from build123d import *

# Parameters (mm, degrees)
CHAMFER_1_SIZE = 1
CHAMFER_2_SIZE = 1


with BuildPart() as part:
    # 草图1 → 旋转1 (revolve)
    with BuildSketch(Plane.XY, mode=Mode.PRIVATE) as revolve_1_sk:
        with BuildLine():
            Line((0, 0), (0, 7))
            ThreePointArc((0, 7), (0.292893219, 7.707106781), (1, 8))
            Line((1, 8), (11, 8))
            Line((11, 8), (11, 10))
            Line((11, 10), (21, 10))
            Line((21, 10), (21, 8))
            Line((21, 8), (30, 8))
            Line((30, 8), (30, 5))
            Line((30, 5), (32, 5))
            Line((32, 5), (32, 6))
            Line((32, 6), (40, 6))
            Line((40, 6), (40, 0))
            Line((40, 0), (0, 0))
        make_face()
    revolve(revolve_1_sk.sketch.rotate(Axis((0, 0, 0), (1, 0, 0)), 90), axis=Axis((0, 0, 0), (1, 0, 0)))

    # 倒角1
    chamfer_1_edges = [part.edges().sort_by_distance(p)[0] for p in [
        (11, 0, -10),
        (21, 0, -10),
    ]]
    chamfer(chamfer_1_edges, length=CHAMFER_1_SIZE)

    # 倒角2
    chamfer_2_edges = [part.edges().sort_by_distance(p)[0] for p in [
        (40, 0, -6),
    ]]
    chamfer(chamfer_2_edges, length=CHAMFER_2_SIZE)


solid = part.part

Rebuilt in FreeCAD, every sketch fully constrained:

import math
import FreeCAD as App
import Part
import Sketcher

V = App.Vector


def edges_at(feature, points):
    """Names of the edges that pass closest to the given points."""
    edges = feature.Shape.Edges
    near = lambda p: min(range(len(edges)), key=lambda i: edges[i].distToShape(Part.Vertex(*p))[0])
    return sorted({f"Edge{near(p) + 1}" for p in points})

doc = App.newDocument("Part")
body = doc.addObject("PartDesign::Body", "Body")

# Sketch on XY plane
sketch1 = doc.addObject("Sketcher::SketchObject", "Sketch")
body.addObject(sketch1)
sketch1.AttachmentSupport = (doc.XY_Plane, [""])
sketch1.MapMode = "FlatFace"
sketch1.addGeometry([
    Part.LineSegment(V(0, 7, 0), V(0, 0, 0)),  # 0
    Part.LineSegment(V(0, 0, 0), V(40, 0, 0)),  # 1
    Part.LineSegment(V(40, 0, 0), V(40, 6, 0)),  # 2
    Part.LineSegment(V(40, 6, 0), V(32, 6, 0)),  # 3
    Part.LineSegment(V(32, 6, 0), V(32, 5, 0)),  # 4
    Part.LineSegment(V(32, 5, 0), V(30, 5, 0)),  # 5
    Part.LineSegment(V(30, 5, 0), V(30, 8, 0)),  # 6
    Part.LineSegment(V(30, 8, 0), V(21, 8, 0)),  # 7
    Part.LineSegment(V(21, 8, 0), V(21, 10, 0)),  # 8
    Part.LineSegment(V(21, 10, 0), V(11, 10, 0)),  # 9
    Part.LineSegment(V(11, 10, 0), V(11, 8, 0)),  # 10
    Part.LineSegment(V(11, 8, 0), V(1, 8, 0)),  # 11
    Part.ArcOfCircle(Part.Circle(V(1, 7, 0), V(0, 0, 1), 1), math.radians(90), math.radians(180)),  # 12
], False)
sketch1.addConstraint([
    Sketcher.Constraint("Coincident", 0, 2, 1, 1),
    Sketcher.Constraint("Coincident", 1, 2, 2, 1),
    Sketcher.Constraint("Coincident", 2, 2, 3, 1),
    Sketcher.Constraint("Coincident", 3, 2, 4, 1),
    Sketcher.Constraint("Coincident", 4, 2, 5, 1),
    Sketcher.Constraint("Coincident", 5, 2, 6, 1),
    Sketcher.Constraint("Coincident", 6, 2, 7, 1),
    Sketcher.Constraint("Coincident", 7, 2, 8, 1),
    Sketcher.Constraint("Coincident", 8, 2, 9, 1),
    Sketcher.Constraint("Coincident", 9, 2, 10, 1),
    Sketcher.Constraint("Coincident", 10, 2, 11, 1),
    Sketcher.Constraint("Tangent", 11, 2, 12, 1),
    Sketcher.Constraint("Tangent", 12, 2, 0, 1),
    Sketcher.Constraint("Vertical", 0),
    Sketcher.Constraint("Horizontal", 1),
    Sketcher.Constraint("Vertical", 2),
    Sketcher.Constraint("Horizontal", 3),
    Sketcher.Constraint("Vertical", 4),
    Sketcher.Constraint("Horizontal", 5),
    Sketcher.Constraint("Vertical", 6),
    Sketcher.Constraint("Horizontal", 7),
    Sketcher.Constraint("Vertical", 8),
    Sketcher.Constraint("Horizontal", 9),
    Sketcher.Constraint("Vertical", 10),
    Sketcher.Constraint("Horizontal", 11),
    Sketcher.Constraint("Coincident", 0, 2, -1, 1),
    Sketcher.Constraint("Horizontal", 7, 2, 10, 2),
    Sketcher.Constraint("Equal", 9, 11),
    Sketcher.Constraint("Equal", 5, 8),
    Sketcher.Constraint("Radius", 12, 1.0),
    Sketcher.Constraint("DistanceX", 1, 1, 1, 2, 40.0),
    Sketcher.Constraint("DistanceX", 3, 2, 3, 1, 8.0),
    Sketcher.Constraint("DistanceX", 5, 2, 5, 1, 2.0),
    Sketcher.Constraint("DistanceX", 7, 2, 7, 1, 9.0),
    Sketcher.Constraint("DistanceY", 0, 2, 0, 1, 7.0),
    Sketcher.Constraint("DistanceY", 2, 1, 2, 2, 6.0),
    Sketcher.Constraint("DistanceY", 4, 2, 4, 1, 1.0),
])
revolution = doc.addObject("PartDesign::Revolution", "Revolution")
body.addObject(revolution)
revolution.Profile = sketch1
revolution.ReferenceAxis = (sketch1, ["H_Axis"])
revolution.Angle = 360
doc.recompute()

chamfer = doc.addObject("PartDesign::Chamfer", "Chamfer")
body.addObject(chamfer)
chamfer.Base = (revolution, edges_at(revolution, [(11, 0, -10), (21, 0, -10)]))
chamfer.Size = 1
doc.recompute()

chamfer2 = doc.addObject("PartDesign::Chamfer", "Chamfer001")
body.addObject(chamfer2)
chamfer2.Base = (chamfer, edges_at(chamfer, [(40, 0, -6)]))
chamfer2.Size = 1

doc.recompute()
